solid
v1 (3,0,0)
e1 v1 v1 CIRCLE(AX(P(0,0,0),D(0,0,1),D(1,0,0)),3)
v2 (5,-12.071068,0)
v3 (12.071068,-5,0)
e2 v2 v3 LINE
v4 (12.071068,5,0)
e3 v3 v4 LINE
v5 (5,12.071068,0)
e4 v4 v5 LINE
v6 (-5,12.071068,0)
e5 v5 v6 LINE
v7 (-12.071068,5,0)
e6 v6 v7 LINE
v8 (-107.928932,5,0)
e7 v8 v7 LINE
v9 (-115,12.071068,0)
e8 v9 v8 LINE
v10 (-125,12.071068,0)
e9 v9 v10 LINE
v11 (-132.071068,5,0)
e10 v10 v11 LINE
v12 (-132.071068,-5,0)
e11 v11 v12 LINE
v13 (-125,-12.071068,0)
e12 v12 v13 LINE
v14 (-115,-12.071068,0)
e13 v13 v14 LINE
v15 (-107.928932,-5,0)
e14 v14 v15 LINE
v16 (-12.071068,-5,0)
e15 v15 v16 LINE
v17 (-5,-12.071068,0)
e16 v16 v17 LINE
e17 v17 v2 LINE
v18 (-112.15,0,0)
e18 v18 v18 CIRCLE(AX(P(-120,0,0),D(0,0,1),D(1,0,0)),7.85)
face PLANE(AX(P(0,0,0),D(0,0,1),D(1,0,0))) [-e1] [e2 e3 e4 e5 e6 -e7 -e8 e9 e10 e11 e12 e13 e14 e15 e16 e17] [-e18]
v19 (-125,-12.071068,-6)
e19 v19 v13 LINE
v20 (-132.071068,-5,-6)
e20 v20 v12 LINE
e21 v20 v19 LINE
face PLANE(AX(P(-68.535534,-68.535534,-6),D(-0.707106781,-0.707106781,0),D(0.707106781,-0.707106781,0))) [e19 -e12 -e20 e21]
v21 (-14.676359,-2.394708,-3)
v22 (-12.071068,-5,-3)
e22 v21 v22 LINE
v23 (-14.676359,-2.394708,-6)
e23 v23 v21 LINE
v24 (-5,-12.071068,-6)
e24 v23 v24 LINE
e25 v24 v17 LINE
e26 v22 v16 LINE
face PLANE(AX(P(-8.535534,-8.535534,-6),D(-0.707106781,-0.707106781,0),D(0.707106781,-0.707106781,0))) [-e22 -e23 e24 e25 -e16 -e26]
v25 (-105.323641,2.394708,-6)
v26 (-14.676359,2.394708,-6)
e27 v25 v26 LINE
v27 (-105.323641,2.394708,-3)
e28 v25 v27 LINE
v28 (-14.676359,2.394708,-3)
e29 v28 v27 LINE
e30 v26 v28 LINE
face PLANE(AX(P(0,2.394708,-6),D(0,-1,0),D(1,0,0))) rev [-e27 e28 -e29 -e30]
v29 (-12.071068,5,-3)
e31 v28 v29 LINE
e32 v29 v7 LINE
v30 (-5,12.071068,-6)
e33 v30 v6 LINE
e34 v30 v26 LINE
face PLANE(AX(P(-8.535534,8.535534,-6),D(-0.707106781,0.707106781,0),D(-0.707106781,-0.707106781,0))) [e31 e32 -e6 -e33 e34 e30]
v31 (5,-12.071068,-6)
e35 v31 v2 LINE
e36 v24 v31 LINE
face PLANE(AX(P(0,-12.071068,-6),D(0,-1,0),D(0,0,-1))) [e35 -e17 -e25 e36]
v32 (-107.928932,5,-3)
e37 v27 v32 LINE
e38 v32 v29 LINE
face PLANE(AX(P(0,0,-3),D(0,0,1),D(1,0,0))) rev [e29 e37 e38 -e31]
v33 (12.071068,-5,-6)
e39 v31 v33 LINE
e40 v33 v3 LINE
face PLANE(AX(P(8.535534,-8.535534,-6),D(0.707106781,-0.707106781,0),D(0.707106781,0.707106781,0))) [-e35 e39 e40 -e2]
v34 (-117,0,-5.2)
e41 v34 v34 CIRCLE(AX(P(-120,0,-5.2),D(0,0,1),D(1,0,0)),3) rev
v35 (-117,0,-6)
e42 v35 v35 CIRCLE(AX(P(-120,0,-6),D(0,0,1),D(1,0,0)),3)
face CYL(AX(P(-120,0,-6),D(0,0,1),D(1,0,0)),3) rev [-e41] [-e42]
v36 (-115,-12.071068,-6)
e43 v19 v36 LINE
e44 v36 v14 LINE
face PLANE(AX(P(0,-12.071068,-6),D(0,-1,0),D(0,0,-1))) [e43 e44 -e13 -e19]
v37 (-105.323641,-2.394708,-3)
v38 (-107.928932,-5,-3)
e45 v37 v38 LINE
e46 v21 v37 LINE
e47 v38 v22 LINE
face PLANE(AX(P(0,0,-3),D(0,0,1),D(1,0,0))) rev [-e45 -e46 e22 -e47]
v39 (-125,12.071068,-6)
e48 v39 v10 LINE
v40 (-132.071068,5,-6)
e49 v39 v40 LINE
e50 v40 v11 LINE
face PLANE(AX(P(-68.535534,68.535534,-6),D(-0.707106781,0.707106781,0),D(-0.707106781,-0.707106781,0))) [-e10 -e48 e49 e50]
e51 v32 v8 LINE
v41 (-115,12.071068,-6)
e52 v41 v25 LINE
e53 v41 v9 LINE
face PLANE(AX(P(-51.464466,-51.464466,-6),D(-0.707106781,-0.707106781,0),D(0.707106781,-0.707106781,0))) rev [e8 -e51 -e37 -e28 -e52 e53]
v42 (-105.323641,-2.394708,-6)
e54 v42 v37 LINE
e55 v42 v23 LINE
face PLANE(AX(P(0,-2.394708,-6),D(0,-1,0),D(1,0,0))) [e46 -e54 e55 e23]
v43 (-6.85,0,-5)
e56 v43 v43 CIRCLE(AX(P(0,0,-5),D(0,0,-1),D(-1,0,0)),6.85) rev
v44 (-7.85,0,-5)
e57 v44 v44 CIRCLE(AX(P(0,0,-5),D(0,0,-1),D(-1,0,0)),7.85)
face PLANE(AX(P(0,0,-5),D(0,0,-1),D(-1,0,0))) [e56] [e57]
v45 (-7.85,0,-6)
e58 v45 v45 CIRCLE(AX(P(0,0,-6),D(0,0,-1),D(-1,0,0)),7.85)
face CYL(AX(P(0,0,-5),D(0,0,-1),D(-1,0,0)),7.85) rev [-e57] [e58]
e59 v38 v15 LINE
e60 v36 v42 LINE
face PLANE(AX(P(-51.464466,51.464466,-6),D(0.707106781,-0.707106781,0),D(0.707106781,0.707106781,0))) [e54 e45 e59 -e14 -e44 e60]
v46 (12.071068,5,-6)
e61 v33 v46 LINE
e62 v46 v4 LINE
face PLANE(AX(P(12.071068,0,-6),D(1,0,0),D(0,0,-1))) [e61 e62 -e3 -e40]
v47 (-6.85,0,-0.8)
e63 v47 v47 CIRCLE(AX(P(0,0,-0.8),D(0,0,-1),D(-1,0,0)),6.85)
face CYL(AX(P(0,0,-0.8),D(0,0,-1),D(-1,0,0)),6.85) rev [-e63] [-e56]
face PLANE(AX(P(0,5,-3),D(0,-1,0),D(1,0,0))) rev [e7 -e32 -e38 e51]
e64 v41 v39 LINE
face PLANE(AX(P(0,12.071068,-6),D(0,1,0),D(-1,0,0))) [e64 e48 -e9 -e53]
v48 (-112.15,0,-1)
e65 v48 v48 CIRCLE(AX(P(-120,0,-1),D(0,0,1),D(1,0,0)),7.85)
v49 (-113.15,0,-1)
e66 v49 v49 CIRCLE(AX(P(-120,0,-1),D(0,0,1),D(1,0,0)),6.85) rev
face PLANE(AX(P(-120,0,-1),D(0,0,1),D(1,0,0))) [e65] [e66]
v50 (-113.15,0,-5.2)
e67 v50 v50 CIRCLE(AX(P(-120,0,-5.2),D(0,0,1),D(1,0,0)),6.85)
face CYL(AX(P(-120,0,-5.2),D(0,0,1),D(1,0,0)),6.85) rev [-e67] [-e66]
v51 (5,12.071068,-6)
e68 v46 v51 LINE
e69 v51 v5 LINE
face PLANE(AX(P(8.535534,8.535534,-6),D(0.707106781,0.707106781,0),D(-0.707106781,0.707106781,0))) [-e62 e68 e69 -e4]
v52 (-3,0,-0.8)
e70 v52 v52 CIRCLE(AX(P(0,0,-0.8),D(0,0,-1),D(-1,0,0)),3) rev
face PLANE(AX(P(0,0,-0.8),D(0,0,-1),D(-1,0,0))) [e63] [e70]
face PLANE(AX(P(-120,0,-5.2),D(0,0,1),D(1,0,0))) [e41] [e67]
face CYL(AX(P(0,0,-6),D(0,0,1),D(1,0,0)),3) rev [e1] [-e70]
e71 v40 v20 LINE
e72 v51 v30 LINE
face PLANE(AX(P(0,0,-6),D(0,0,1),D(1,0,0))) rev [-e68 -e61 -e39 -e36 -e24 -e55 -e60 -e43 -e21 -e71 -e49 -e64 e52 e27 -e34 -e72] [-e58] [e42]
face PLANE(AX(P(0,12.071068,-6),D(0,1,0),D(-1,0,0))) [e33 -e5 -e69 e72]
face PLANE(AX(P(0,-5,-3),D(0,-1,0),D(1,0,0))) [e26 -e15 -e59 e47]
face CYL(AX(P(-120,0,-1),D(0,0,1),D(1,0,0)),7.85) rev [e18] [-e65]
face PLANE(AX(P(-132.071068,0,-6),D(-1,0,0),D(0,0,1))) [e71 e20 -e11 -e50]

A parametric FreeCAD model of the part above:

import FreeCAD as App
import Part
import Sketcher
Q = App.Units.Quantity

doc = App.newDocument("Part")
params = doc.addObject("Spreadsheet::Sheet", "Params")
for row, (alias, value) in enumerate([
    ("sketch1_diameter", "6 mm"),
    ("sketch1_width", "10 mm"),
    ("sketch1_length", "10 mm"),
    ("pad1_length", "6 mm"),
    ("pad2_length", "3 mm"),
    ("sketch3_diameter", "13.7 mm"),
    ("pocket1_length", "5.2 mm"),
    ("sketch4_diameter", "15.7 mm"),
    ("pocket2_length", "1 mm"),
    ("sketch5_diameter", "13.7 mm"),
    ("pocket3_length", "5.2 mm"),
    ("sketch6_diameter", "15.7 mm"),
    ("pocket4_length", "1 mm"),
], start=1):
    params.set(f"A{row}", alias)
    params.set(f"B{row}", "=" + value)
    params.setAlias(f"B{row}", alias)

body = doc.addObject("PartDesign::Body", "Body")

# Sketch on XY plane
sketch1 = body.newObject("Sketcher::SketchObject", "Sketch")
sketch1.AttachmentSupport = (doc.getObject("XY_Plane"), [""])
sketch1.MapMode = "FlatFace"
sketch1.addGeometry(Part.LineSegment(App.Vector(12.1, 5, 0), App.Vector(5, 12.1, 0)), False)
sketch1.addGeometry(Part.LineSegment(App.Vector(5, 12.1, 0), App.Vector(-5, 12.1, 0)), False)
sketch1.addGeometry(Part.LineSegment(App.Vector(-5, 12.1, 0), App.Vector(-14.7, 2.4, 0)), False)
sketch1.addGeometry(Part.LineSegment(App.Vector(-14.7, 2.4, 0), App.Vector(-105.3, 2.4, 0)), False)
sketch1.addGeometry(Part.LineSegment(App.Vector(-105.3, 2.4, 0), App.Vector(-115, 12.1, 0)), False)
sketch1.addGeometry(Part.LineSegment(App.Vector(-115, 12.1, 0), App.Vector(-125, 12.1, 0)), False)
sketch1.addGeometry(Part.LineSegment(App.Vector(-125, 12.1, 0), App.Vector(-132.1, 5, 0)), False)
sketch1.addGeometry(Part.LineSegment(App.Vector(-132.1, 5, 0), App.Vector(-132.1, -5, 0)), False)
sketch1.addGeometry(Part.LineSegment(App.Vector(-132.1, -5, 0), App.Vector(-125, -12.1, 0)), False)
sketch1.addGeometry(Part.LineSegment(App.Vector(-125, -12.1, 0), App.Vector(-115, -12.1, 0)), False)
sketch1.addGeometry(Part.LineSegment(App.Vector(-115, -12.1, 0), App.Vector(-105.3, -2.4, 0)), False)
sketch1.addGeometry(Part.LineSegment(App.Vector(-105.3, -2.4, 0), App.Vector(-14.7, -2.4, 0)), False)
sketch1.addGeometry(Part.LineSegment(App.Vector(-14.7, -2.4, 0), App.Vector(-5, -12.1, 0)), False)
sketch1.addGeometry(Part.LineSegment(App.Vector(-5, -12.1, 0), App.Vector(5, -12.1, 0)), False)
sketch1.addGeometry(Part.LineSegment(App.Vector(5, -12.1, 0), App.Vector(12.1, -5, 0)), False)
sketch1.addGeometry(Part.LineSegment(App.Vector(12.1, -5, 0), App.Vector(12.1, 5, 0)), False)
sketch1.addGeometry(Part.Circle(App.Vector(-120, 0, 0), App.Vector(0, 0, 1), 3), False)
sketch1.addGeometry(Part.Circle(App.Vector(0, 0, 0), App.Vector(0, 0, 1), 3), False)
sketch1.addConstraint(Sketcher.Constraint("Coincident", 0, 2, 1, 1))
sketch1.addConstraint(Sketcher.Constraint("Coincident", 1, 2, 2, 1))
sketch1.addConstraint(Sketcher.Constraint("Coincident", 2, 2, 3, 1))
sketch1.addConstraint(Sketcher.Constraint("Coincident", 3, 2, 4, 1))
sketch1.addConstraint(Sketcher.Constraint("Coincident", 4, 2, 5, 1))
sketch1.addConstraint(Sketcher.Constraint("Coincident", 5, 2, 6, 1))
sketch1.addConstraint(Sketcher.Constraint("Coincident", 6, 2, 7, 1))
sketch1.addConstraint(Sketcher.Constraint("Coincident", 7, 2, 8, 1))
sketch1.addConstraint(Sketcher.Constraint("Coincident", 8, 2, 9, 1))
sketch1.addConstraint(Sketcher.Constraint("Coincident", 9, 2, 10, 1))
sketch1.addConstraint(Sketcher.Constraint("Coincident", 10, 2, 11, 1))
sketch1.addConstraint(Sketcher.Constraint("Coincident", 11, 2, 12, 1))
sketch1.addConstraint(Sketcher.Constraint("Coincident", 12, 2, 13, 1))
sketch1.addConstraint(Sketcher.Constraint("Coincident", 13, 2, 14, 1))
sketch1.addConstraint(Sketcher.Constraint("Coincident", 14, 2, 15, 1))
sketch1.addConstraint(Sketcher.Constraint("Coincident", 15, 2, 0, 1))
sketch1.addConstraint(Sketcher.Constraint("Horizontal", 1))
sketch1.addConstraint(Sketcher.Constraint("Horizontal", 3))
sketch1.addConstraint(Sketcher.Constraint("Horizontal", 5))
sketch1.addConstraint(Sketcher.Constraint("Vertical", 7))
sketch1.addConstraint(Sketcher.Constraint("Horizontal", 9))
sketch1.addConstraint(Sketcher.Constraint("Horizontal", 11))
sketch1.addConstraint(Sketcher.Constraint("Horizontal", 13))
sketch1.addConstraint(Sketcher.Constraint("Vertical", 15))
sketch1.addConstraint(Sketcher.Constraint("Coincident", 17, 3, -1, 1))
sketch1.addConstraint(Sketcher.Constraint("Equal", 16, 17))
sketch1.addConstraint(Sketcher.Constraint("Symmetric", 0, 2, 12, 2, -1, 1))
sketch1.addConstraint(Sketcher.Constraint("Symmetric", 5, 2, 8, 2, -1))
sketch1.addConstraint(Sketcher.Constraint("Symmetric", 3, 2, 10, 2, -1))
sketch1.addConstraint(Sketcher.Constraint("PointOnObject", 16, 3, -1))
sketch1.addConstraint(Sketcher.Constraint("Perpendicular", 0, 2))
sketch1.addConstraint(Sketcher.Constraint("Perpendicular", 2, 4))
sketch1.addConstraint(Sketcher.Constraint("Perpendicular", 4, 6))
sketch1.addConstraint(Sketcher.Constraint("Perpendicular", 6, 8))
sketch1.addConstraint(Sketcher.Constraint("Perpendicular", 8, 10))
sketch1.addConstraint(Sketcher.Constraint("Perpendicular", 10, 12))
sketch1.addConstraint(Sketcher.Constraint("Perpendicular", 12, 14))
sketch1.addConstraint(Sketcher.Constraint("Horizontal", 1, 2, 4, 2))
sketch1.addConstraint(Sketcher.Constraint("Horizontal", 7, 2, 14, 2))
sketch1.addConstraint(Sketcher.Constraint("Horizontal", 6, 2, 15, 2))
sketch1.addConstraint(Sketcher.Constraint("Vertical", 4, 2, 9, 2))
sketch1.addConstraint(Sketcher.Constraint("Vertical", 2, 2, 11, 2))
sketch1.addConstraint(Sketcher.Constraint("Equal", 1, 5))
sketch1.addConstraint(Sketcher.Constraint("Equal", 13, 7))
sketch1.addConstraint(Sketcher.Constraint("Diameter", 16, Q("6 mm")))
sketch1.addConstraint(Sketcher.Constraint("DistanceX", 1, 2, 1, 1, Q("10 mm")))
sketch1.addConstraint(Sketcher.Constraint("Distance", 0, Q("10 mm")))
sketch1.addConstraint(Sketcher.Constraint("DistanceX", 16, 3, -1, 1, Q("120 mm")))
sketch1.addConstraint(Sketcher.Constraint("DistanceX", 4, 2, -1, 1, Q("115 mm")))
sketch1.addConstraint(Sketcher.Constraint("DistanceX", 3, 2, 3, 1, Q("90.647281 mm")))
sketch1.setExpression("Constraints[44]", "Params.sketch1_diameter")
sketch1.setExpression("Constraints[45]", "Params.sketch1_width")
sketch1.setExpression("Constraints[46]", "Params.sketch1_length")
pad1 = body.newObject("PartDesign::Pad", "Pad")
pad1.Profile = sketch1
pad1.setExpression("Length", "Params.pad1_length")
pad1.Reversed = True

# Sketch on XY plane
sketch2 = body.newObject("Sketcher::SketchObject", "Sketch001")
sketch2.AttachmentSupport = (doc.getObject("XY_Plane"), [""])
sketch2.MapMode = "FlatFace"
sketch2.addGeometry(Part.LineSegment(App.Vector(-12.1, -5, 0), App.Vector(-14.7, -2.4, 0)), False)
sketch2.addGeometry(Part.LineSegment(App.Vector(-14.7, -2.4, 0), App.Vector(-105.3, -2.4, 0)), False)
sketch2.addGeometry(Part.LineSegment(App.Vector(-105.3, -2.4, 0), App.Vector(-107.9, -5, 0)), False)
sketch2.addGeometry(Part.LineSegment(App.Vector(-107.9, -5, 0), App.Vector(-12.1, -5, 0)), False)
sketch2.addGeometry(Part.LineSegment(App.Vector(-105.3, 2.4, 0), App.Vector(-14.7, 2.4, 0)), False)
sketch2.addGeometry(Part.LineSegment(App.Vector(-14.7, 2.4, 0), App.Vector(-12.1, 5, 0)), False)
sketch2.addGeometry(Part.LineSegment(App.Vector(-12.1, 5, 0), App.Vector(-107.9, 5, 0)), False)
sketch2.addGeometry(Part.LineSegment(App.Vector(-107.9, 5, 0), App.Vector(-105.3, 2.4, 0)), False)
sketch2.addConstraint(Sketcher.Constraint("Coincident", 0, 2, 1, 1))
sketch2.addConstraint(Sketcher.Constraint("Coincident", 1, 2, 2, 1))
sketch2.addConstraint(Sketcher.Constraint("Coincident", 2, 2, 3, 1))
sketch2.addConstraint(Sketcher.Constraint("Coincident", 3, 2, 0, 1))
sketch2.addConstraint(Sketcher.Constraint("Coincident", 4, 2, 5, 1))
sketch2.addConstraint(Sketcher.Constraint("Coincident", 5, 2, 6, 1))
sketch2.addConstraint(Sketcher.Constraint("Coincident", 6, 2, 7, 1))
sketch2.addConstraint(Sketcher.Constraint("Coincident", 7, 2, 4, 1))
sketch2.addConstraint(Sketcher.Constraint("Horizontal", 1))
sketch2.addConstraint(Sketcher.Constraint("Horizontal", 3))
sketch2.addConstraint(Sketcher.Constraint("Horizontal", 4))
sketch2.addConstraint(Sketcher.Constraint("Horizontal", 6))
sketch2.addConstraint(Sketcher.Constraint("Symmetric", 0, 2, 4, 2, -1))
sketch2.addConstraint(Sketcher.Constraint("Symmetric", 3, 2, 5, 2, -1))
sketch2.addConstraint(Sketcher.Constraint("Perpendicular", 0, 2))
sketch2.addConstraint(Sketcher.Constraint("Parallel", 2, 5))
sketch2.addConstraint(Sketcher.Constraint("Perpendicular", 5, 7))
sketch2.addConstraint(Sketcher.Constraint("Vertical", 2, 2, 6, 2))
sketch2.addConstraint(Sketcher.Constraint("DistanceY", 2, 2, -1, 1, Q("5 mm")))
sketch2.addConstraint(Sketcher.Constraint("DistanceX", 1, 2, 1, 1, Q("90.647281 mm")))
sketch2.addConstraint(Sketcher.Constraint("Distance", 0, Q("3.684439 mm")))
sketch2.addConstraint(Sketcher.Constraint("DistanceX", 0, 2, -1, 1, Q("14.676359 mm")))
pad2 = body.newObject("PartDesign::Pad", "Pad001")
pad2.Profile = sketch2
pad2.setExpression("Length", "Params.pad2_length")
pad2.Reversed = True

# Sketch on XY plane
sketch3 = body.newObject("Sketcher::SketchObject", "Sketch002")
sketch3.AttachmentSupport = (doc.getObject("XY_Plane"), [""])
sketch3.MapMode = "FlatFace"
sketch3.AttachmentOffset = App.Placement(App.Vector(0, 0, -6), App.Rotation())
sketch3.addGeometry(Part.Circle(App.Vector(0, 0, 0), App.Vector(0, 0, 1), 7), False)
sketch3.addConstraint(Sketcher.Constraint("Coincident", 0, 3, -1, 1))
sketch3.addConstraint(Sketcher.Constraint("Diameter", 0, Q("13.7 mm")))
sketch3.setExpression("Constraints[1]", "Params.sketch3_diameter")
pocket1 = body.newObject("PartDesign::Pocket", "Pocket")
pocket1.Profile = sketch3
pocket1.setExpression("Length", "Params.pocket1_length")
pocket1.Reversed = True

# Sketch on XY plane
sketch4 = body.newObject("Sketcher::SketchObject", "Sketch003")
sketch4.AttachmentSupport = (doc.getObject("XY_Plane"), [""])
sketch4.MapMode = "FlatFace"
sketch4.AttachmentOffset = App.Placement(App.Vector(0, 0, -6), App.Rotation())
sketch4.addGeometry(Part.Circle(App.Vector(0, 0, 0), App.Vector(0, 0, 1), 8), False)
sketch4.addConstraint(Sketcher.Constraint("Coincident", 0, 3, -1, 1))
sketch4.addConstraint(Sketcher.Constraint("Diameter", 0, Q("15.7 mm")))
sketch4.setExpression("Constraints[1]", "Params.sketch4_diameter")
pocket2 = body.newObject("PartDesign::Pocket", "Pocket001")
pocket2.Profile = sketch4
pocket2.setExpression("Length", "Params.pocket2_length")
pocket2.Reversed = True

# Sketch on XY plane
sketch5 = body.newObject("Sketcher::SketchObject", "Sketch004")
sketch5.AttachmentSupport = (doc.getObject("XY_Plane"), [""])
sketch5.MapMode = "FlatFace"
sketch5.addGeometry(Part.Circle(App.Vector(-120, 0, 0), App.Vector(0, 0, 1), 7), False)
sketch5.addConstraint(Sketcher.Constraint("PointOnObject", 0, 3, -1))
sketch5.addConstraint(Sketcher.Constraint("Diameter", 0, Q("13.7 mm")))
sketch5.addConstraint(Sketcher.Constraint("DistanceX", 0, 3, -1, 1, Q("120 mm")))
sketch5.setExpression("Constraints[1]", "Params.sketch5_diameter")
pocket3 = body.newObject("PartDesign::Pocket", "Pocket002")
pocket3.Profile = sketch5
pocket3.setExpression("Length", "Params.pocket3_length")

# Sketch on XY plane
sketch6 = body.newObject("Sketcher::SketchObject", "Sketch005")
sketch6.AttachmentSupport = (doc.getObject("XY_Plane"), [""])
sketch6.MapMode = "FlatFace"
sketch6.addGeometry(Part.Circle(App.Vector(-120, 0, 0), App.Vector(0, 0, 1), 8), False)
sketch6.addConstraint(Sketcher.Constraint("PointOnObject", 0, 3, -1))
sketch6.addConstraint(Sketcher.Constraint("Diameter", 0, Q("15.7 mm")))
sketch6.addConstraint(Sketcher.Constraint("DistanceX", 0, 3, -1, 1, Q("120 mm")))
sketch6.setExpression("Constraints[1]", "Params.sketch6_diameter")
pocket4 = body.newObject("PartDesign::Pocket", "Pocket003")
pocket4.Profile = sketch6
pocket4.setExpression("Length", "Params.pocket4_length")

doc.recompute()
